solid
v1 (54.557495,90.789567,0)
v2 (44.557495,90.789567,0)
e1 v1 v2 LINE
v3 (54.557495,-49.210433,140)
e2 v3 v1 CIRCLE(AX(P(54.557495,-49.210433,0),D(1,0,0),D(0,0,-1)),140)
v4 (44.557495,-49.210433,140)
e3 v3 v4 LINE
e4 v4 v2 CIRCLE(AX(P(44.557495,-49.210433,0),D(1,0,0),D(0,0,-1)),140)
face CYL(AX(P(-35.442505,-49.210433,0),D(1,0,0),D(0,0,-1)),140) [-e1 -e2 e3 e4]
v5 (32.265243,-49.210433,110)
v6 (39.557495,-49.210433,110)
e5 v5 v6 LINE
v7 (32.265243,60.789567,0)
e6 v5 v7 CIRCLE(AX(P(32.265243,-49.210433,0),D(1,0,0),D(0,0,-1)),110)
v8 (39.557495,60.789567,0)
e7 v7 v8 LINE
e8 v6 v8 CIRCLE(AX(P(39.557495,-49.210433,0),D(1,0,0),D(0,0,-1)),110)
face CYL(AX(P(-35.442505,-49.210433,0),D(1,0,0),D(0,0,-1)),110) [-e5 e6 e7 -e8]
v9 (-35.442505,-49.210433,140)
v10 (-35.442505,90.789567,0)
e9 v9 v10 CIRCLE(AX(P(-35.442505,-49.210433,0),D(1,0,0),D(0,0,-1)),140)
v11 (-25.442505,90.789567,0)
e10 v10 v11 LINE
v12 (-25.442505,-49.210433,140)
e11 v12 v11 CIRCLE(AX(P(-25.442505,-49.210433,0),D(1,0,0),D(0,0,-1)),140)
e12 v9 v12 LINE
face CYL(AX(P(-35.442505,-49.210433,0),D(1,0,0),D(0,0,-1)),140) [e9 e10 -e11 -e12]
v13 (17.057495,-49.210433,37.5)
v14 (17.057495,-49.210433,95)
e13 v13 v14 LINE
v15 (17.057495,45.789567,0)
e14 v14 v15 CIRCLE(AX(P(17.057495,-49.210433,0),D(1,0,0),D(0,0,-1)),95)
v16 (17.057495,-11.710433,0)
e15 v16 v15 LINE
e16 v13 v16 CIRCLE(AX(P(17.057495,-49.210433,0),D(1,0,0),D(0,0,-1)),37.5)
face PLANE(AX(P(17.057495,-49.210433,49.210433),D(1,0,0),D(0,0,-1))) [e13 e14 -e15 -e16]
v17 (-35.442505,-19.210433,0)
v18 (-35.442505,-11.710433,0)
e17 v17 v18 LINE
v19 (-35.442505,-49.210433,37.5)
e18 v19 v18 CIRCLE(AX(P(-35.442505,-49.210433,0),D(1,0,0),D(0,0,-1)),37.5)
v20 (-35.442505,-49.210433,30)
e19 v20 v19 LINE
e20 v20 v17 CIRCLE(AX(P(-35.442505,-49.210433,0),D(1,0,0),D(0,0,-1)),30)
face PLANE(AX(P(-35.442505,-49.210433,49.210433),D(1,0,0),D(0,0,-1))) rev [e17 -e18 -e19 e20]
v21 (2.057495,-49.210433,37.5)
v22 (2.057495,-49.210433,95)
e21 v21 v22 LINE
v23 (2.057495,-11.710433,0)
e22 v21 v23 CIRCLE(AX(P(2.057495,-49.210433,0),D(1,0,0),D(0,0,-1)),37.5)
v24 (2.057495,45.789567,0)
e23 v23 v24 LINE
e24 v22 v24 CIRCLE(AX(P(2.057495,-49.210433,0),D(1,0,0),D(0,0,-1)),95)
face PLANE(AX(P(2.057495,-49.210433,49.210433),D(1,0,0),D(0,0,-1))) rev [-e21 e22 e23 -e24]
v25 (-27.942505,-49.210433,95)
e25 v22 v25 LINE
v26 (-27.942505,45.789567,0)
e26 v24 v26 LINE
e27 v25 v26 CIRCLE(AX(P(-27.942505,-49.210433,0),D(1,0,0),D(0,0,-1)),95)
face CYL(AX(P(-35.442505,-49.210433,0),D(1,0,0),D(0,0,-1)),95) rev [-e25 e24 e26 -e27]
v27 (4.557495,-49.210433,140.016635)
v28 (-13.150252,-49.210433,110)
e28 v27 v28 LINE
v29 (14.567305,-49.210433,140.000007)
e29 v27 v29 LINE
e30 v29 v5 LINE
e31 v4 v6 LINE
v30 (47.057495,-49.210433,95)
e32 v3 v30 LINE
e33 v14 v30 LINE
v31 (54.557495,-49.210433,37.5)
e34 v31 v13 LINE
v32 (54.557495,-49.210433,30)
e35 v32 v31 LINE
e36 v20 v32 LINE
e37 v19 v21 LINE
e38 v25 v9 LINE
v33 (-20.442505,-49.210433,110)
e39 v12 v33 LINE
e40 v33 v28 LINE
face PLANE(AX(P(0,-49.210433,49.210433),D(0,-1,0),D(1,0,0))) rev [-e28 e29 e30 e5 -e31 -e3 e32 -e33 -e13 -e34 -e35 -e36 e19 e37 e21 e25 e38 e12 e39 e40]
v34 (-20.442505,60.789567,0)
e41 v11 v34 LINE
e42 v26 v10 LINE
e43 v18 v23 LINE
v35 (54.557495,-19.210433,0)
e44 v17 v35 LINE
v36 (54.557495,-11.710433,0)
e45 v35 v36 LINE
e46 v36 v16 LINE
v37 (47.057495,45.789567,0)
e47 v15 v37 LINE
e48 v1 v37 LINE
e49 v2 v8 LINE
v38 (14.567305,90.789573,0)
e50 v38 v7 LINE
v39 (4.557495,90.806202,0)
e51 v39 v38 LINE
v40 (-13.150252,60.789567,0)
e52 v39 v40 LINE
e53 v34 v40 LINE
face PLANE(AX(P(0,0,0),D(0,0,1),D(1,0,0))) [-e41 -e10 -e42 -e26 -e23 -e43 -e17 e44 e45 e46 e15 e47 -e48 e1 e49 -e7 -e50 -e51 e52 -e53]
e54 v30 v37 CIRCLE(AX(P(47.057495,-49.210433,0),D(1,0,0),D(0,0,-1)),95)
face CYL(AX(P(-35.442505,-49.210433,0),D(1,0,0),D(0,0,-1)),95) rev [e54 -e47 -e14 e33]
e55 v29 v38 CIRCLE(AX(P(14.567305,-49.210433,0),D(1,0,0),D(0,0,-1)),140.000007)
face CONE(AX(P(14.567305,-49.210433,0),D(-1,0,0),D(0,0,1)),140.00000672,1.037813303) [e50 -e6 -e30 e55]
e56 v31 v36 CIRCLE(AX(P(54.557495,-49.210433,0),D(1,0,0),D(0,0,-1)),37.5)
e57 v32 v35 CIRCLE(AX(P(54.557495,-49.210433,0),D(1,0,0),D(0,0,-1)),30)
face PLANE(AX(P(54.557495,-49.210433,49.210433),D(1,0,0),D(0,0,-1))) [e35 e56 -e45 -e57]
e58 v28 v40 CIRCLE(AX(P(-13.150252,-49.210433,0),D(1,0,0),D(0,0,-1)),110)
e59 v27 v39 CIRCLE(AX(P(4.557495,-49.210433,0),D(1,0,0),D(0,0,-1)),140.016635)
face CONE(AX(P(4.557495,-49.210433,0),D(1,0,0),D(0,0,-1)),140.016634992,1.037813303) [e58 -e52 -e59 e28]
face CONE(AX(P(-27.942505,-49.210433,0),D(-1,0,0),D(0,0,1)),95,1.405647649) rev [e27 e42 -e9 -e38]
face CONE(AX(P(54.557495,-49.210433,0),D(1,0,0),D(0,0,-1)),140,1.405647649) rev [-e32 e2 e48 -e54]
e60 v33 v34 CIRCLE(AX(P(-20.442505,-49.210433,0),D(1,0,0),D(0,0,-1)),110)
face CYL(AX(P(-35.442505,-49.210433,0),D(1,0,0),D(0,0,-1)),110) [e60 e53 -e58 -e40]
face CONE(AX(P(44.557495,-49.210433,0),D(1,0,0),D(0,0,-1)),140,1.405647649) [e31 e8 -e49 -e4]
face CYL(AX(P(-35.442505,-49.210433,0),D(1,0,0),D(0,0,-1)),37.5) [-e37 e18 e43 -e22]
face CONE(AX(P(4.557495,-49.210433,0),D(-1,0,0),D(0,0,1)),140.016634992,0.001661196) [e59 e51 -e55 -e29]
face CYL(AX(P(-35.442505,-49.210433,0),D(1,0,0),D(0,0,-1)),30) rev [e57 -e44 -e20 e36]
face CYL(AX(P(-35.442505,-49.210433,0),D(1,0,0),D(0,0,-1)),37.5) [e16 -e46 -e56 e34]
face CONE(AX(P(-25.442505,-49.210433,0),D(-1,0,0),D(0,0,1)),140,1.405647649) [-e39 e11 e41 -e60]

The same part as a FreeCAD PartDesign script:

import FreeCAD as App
import Part
import Sketcher

V = App.Vector

doc = App.newDocument("Part")
body = doc.addObject("PartDesign::Body", "Body")

# Sketch on XY plane
sketch1 = body.newObject("Sketcher::SketchObject", "Sketch")
sketch1.AttachmentSupport = (doc.getObject("XY_Plane"), [""])
sketch1.MapMode = "FlatFace"
sketch1.addGeometry(Part.LineSegment(V(-35.442505, -11.710433, 0), V(-35.442505, -19.210433, 0)), False)
sketch1.addGeometry(Part.LineSegment(V(-35.442505, -19.210433, 0), V(54.557495, -19.210433, 0)), False)
sketch1.addGeometry(Part.LineSegment(V(54.557495, -19.210433, 0), V(54.557495, -11.710433, 0)), False)
sketch1.addGeometry(Part.LineSegment(V(54.557495, -11.710433, 0), V(17.057495, -11.710433, 0)), False)
sketch1.addGeometry(Part.LineSegment(V(17.057495, -11.710433, 0), V(17.057495, 45.789567, 0)), False)
sketch1.addGeometry(Part.LineSegment(V(17.057495, 45.789567, 0), V(47.057495, 45.789567, 0)), False)
sketch1.addGeometry(Part.LineSegment(V(47.057495, 45.789567, 0), V(54.557495, 90.789567, 0)), False)
sketch1.addGeometry(Part.LineSegment(V(54.557495, 90.789567, 0), V(44.557495, 90.789567, 0)), False)
sketch1.addGeometry(Part.LineSegment(V(44.557495, 90.789567, 0), V(39.557495, 60.789567, 0)), False)
sketch1.addGeometry(Part.LineSegment(V(39.557495, 60.789567, 0), V(32.265243, 60.789567, 0)), False)
sketch1.addGeometry(Part.LineSegment(V(32.265243, 60.789567, 0), V(14.567305, 90.789573, 0)), False)
sketch1.addGeometry(Part.LineSegment(V(14.567305, 90.789573, 0), V(4.557495, 90.806202, 0)), False)
sketch1.addGeometry(Part.LineSegment(V(4.557495, 90.806202, 0), V(-13.150252, 60.789567, 0)), False)
sketch1.addGeometry(Part.LineSegment(V(-13.150252, 60.789567, 0), V(-20.442505, 60.789567, 0)), False)
sketch1.addGeometry(Part.LineSegment(V(-20.442505, 60.789567, 0), V(-25.442505, 90.789567, 0)), False)
sketch1.addGeometry(Part.LineSegment(V(-25.442505, 90.789567, 0), V(-35.442505, 90.789567, 0)), False)
sketch1.addGeometry(Part.LineSegment(V(-35.442505, 90.789567, 0), V(-27.942505, 45.789567, 0)), False)
sketch1.addGeometry(Part.LineSegment(V(-27.942505, 45.789567, 0), V(2.057495, 45.789567, 0)), False)
sketch1.addGeometry(Part.LineSegment(V(2.057495, 45.789567, 0), V(2.057495, -11.710433, 0)), False)
sketch1.addGeometry(Part.LineSegment(V(2.057495, -11.710433, 0), V(-35.442505, -11.710433, 0)), False)
sketch1.addGeometry(Part.LineSegment(V(54.557495, -49.210433, 0), V(-35.442505, -49.210433, 0)), True)  # axis
sketch1.addConstraint(Sketcher.Constraint("Coincident", 0, 2, 1, 1))
sketch1.addConstraint(Sketcher.Constraint("Coincident", 1, 2, 2, 1))
sketch1.addConstraint(Sketcher.Constraint("Coincident", 2, 2, 3, 1))
sketch1.addConstraint(Sketcher.Constraint("Coincident", 3, 2, 4, 1))
sketch1.addConstraint(Sketcher.Constraint("Coincident", 4, 2, 5, 1))
sketch1.addConstraint(Sketcher.Constraint("Coincident", 5, 2, 6, 1))
sketch1.addConstraint(Sketcher.Constraint("Coincident", 6, 2, 7, 1))
sketch1.addConstraint(Sketcher.Constraint("Coincident", 7, 2, 8, 1))
sketch1.addConstraint(Sketcher.Constraint("Coincident", 8, 2, 9, 1))
sketch1.addConstraint(Sketcher.Constraint("Coincident", 9, 2, 10, 1))
sketch1.addConstraint(Sketcher.Constraint("Coincident", 10, 2, 11, 1))
sketch1.addConstraint(Sketcher.Constraint("Coincident", 11, 2, 12, 1))
sketch1.addConstraint(Sketcher.Constraint("Coincident", 12, 2, 13, 1))
sketch1.addConstraint(Sketcher.Constraint("Coincident", 13, 2, 14, 1))
sketch1.addConstraint(Sketcher.Constraint("Coincident", 14, 2, 15, 1))
sketch1.addConstraint(Sketcher.Constraint("Coincident", 15, 2, 16, 1))
sketch1.addConstraint(Sketcher.Constraint("Coincident", 16, 2, 17, 1))
sketch1.addConstraint(Sketcher.Constraint("Coincident", 17, 2, 18, 1))
sketch1.addConstraint(Sketcher.Constraint("Coincident", 18, 2, 19, 1))
sketch1.addConstraint(Sketcher.Constraint("Coincident", 19, 2, 0, 1))
sketch1.addConstraint(Sketcher.Constraint("Vertical", 0))
sketch1.addConstraint(Sketcher.Constraint("Horizontal", 1))
sketch1.addConstraint(Sketcher.Constraint("Vertical", 2))
sketch1.addConstraint(Sketcher.Constraint("Horizontal", 3))
sketch1.addConstraint(Sketcher.Constraint("Vertical", 4))
sketch1.addConstraint(Sketcher.Constraint("Horizontal", 5))
sketch1.addConstraint(Sketcher.Constraint("Horizontal", 7))
sketch1.addConstraint(Sketcher.Constraint("Horizontal", 9))
sketch1.addConstraint(Sketcher.Constraint("Horizontal", 13))
sketch1.addConstraint(Sketcher.Constraint("Horizontal", 15))
sketch1.addConstraint(Sketcher.Constraint("Horizontal", 17))
sketch1.addConstraint(Sketcher.Constraint("Vertical", 18))
sketch1.addConstraint(Sketcher.Constraint("Horizontal", 19))
sketch1.addConstraint(Sketcher.Constraint("Horizontal", 20))
sketch1.addConstraint(Sketcher.Constraint("Parallel", 6, 8))
sketch1.addConstraint(Sketcher.Constraint("Parallel", 14, 16))
sketch1.addConstraint(Sketcher.Constraint("Horizontal", 9, 2, 12, 2))
sketch1.addConstraint(Sketcher.Constraint("Horizontal", 7, 2, 14, 2))
sketch1.addConstraint(Sketcher.Constraint("Horizontal", 5, 2, 16, 2))
sketch1.addConstraint(Sketcher.Constraint("Horizontal", 3, 2, 18, 2))
sketch1.addConstraint(Sketcher.Constraint("Vertical", 2, 2, 6, 2))
sketch1.addConstraint(Sketcher.Constraint("Vertical", 0, 2, 15, 2))
sketch1.addConstraint(Sketcher.Constraint("Vertical", 6, 2, 20, 1))
sketch1.addConstraint(Sketcher.Constraint("Vertical", 19, 2, 20, 2))
sketch1.addConstraint(Sketcher.Constraint("Equal", 9, 13))
sketch1.addConstraint(Sketcher.Constraint("Equal", 7, 15))
sketch1.addConstraint(Sketcher.Constraint("Equal", 5, 17))
sketch1.addConstraint(Sketcher.Constraint("Equal", 3, 19))
sketch1.addConstraint(Sketcher.Constraint("DistanceX", 1, 1, 1, 2, 90.0))
sketch1.addConstraint(Sketcher.Constraint("DistanceX", 5, 1, 5, 2, 30.0))
sketch1.addConstraint(Sketcher.Constraint("DistanceX", 7, 2, 7, 1, 10.0))
sketch1.addConstraint(Sketcher.Constraint("DistanceX", 3, 2, 3, 1, 37.5))
sketch1.addConstraint(Sketcher.Constraint("DistanceY", 0, 2, 0, 1, 7.5))
sketch1.addConstraint(Sketcher.Constraint("DistanceY", 4, 1, 4, 2, 57.5))
sketch1.addConstraint(Sketcher.Constraint("DistanceY", 5, 2, 6, 2, 45.0))
sketch1.addConstraint(Sketcher.Constraint("DistanceY", 5, 2, 8, 2, 15.0))
sketch1.addConstraint(Sketcher.Constraint("DistanceX", 11, 2, 7, 2, 40.0))
sketch1.addConstraint(Sketcher.Constraint("DistanceY", 20, 1, 1, 2, 30.0))
sketch1.addConstraint(Sketcher.Constraint("DistanceY", -1, 1, 11, 2, 90.806202))
sketch1.addConstraint(Sketcher.Constraint("Distance", 10, 34.831271))
sketch1.addConstraint(Sketcher.Constraint("DistanceX", 9, 2, 9, 1, 7.292253))
sketch1.addConstraint(Sketcher.Constraint("DistanceX", 10, 2, 7, 2, 29.99019))
sketch1.addConstraint(Sketcher.Constraint("DistanceY", 10, 2, 11, 2, 0.016628))
sketch1.addConstraint(Sketcher.Constraint("DistanceX", 0, 2, -1, 1, 35.442505))
revolution = body.newObject("PartDesign::Revolution", "Revolution")
revolution.Profile = sketch1
revolution.ReferenceAxis = (sketch1, ["Axis0"])
revolution.Angle = 270

doc.recompute()
